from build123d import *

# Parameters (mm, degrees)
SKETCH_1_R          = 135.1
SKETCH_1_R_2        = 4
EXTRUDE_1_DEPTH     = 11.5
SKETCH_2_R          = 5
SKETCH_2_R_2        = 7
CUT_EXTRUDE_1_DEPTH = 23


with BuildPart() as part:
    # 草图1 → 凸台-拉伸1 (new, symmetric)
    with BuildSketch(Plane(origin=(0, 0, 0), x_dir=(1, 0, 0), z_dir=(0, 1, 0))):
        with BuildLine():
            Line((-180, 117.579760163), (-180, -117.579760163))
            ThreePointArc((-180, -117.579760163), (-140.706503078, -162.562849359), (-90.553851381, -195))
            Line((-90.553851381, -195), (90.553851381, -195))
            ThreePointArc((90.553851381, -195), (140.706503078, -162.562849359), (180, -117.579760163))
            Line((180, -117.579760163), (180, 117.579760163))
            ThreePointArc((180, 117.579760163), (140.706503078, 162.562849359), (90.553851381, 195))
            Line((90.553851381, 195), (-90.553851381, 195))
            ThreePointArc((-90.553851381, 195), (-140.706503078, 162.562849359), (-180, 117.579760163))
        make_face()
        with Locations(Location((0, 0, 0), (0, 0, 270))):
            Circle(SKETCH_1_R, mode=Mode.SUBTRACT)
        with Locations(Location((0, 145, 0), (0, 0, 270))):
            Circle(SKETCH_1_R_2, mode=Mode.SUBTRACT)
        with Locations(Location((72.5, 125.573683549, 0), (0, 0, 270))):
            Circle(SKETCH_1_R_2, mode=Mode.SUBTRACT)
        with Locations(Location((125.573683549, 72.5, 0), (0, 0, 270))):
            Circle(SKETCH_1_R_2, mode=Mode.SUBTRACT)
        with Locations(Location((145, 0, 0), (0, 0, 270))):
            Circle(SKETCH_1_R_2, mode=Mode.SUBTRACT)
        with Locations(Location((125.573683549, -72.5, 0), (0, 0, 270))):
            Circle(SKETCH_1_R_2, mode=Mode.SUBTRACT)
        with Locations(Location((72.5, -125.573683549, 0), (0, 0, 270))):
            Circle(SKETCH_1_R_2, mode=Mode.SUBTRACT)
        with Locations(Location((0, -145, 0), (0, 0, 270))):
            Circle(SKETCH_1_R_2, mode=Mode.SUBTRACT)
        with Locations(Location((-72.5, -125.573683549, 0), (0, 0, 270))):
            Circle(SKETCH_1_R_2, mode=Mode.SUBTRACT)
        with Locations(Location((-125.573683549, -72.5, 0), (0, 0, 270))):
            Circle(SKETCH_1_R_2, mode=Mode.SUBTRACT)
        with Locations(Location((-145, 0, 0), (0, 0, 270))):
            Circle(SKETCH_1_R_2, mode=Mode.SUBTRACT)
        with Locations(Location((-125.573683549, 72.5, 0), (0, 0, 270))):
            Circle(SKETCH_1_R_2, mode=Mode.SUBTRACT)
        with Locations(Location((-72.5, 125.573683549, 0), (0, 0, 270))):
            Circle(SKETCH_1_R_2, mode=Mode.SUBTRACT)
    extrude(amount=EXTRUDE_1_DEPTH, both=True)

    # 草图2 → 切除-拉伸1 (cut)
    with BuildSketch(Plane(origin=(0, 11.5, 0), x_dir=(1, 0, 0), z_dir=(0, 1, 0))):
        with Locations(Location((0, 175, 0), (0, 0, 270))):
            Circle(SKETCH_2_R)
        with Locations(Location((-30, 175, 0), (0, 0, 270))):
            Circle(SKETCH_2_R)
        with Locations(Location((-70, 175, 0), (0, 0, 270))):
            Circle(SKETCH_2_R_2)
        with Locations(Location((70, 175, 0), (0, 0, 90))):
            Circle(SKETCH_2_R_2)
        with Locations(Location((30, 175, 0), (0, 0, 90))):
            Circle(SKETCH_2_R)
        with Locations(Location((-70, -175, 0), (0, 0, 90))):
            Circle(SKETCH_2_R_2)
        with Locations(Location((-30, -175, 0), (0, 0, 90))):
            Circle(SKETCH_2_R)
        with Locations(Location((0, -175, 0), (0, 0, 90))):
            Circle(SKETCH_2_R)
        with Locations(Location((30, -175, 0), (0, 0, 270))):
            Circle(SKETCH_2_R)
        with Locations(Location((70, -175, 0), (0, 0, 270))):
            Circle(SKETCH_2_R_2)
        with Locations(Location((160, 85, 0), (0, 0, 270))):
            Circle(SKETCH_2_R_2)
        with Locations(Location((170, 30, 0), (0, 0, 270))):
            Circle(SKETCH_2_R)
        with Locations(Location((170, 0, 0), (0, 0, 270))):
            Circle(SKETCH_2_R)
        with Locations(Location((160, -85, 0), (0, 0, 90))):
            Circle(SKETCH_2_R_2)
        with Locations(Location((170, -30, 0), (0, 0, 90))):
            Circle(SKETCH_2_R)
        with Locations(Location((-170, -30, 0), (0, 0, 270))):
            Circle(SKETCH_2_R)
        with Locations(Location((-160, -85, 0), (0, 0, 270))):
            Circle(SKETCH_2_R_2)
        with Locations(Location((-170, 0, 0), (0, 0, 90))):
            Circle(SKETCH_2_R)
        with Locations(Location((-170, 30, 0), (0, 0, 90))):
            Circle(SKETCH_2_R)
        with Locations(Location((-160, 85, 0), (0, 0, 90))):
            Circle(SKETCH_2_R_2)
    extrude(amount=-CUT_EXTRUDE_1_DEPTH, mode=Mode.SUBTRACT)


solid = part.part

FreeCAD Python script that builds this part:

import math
import FreeCAD as App
import Part
import Sketcher
from FreeCAD import Vector
Q = App.Units.Quantity

doc = App.newDocument("Part")
body = doc.addObject("PartDesign::Body", "Body")

# Sketch on XZ plane
sketch1 = body.newObject("Sketcher::SketchObject", "Sketch")
sketch1.AttachmentSupport = (doc.getObject("XZ_Plane"), [""])
sketch1.MapMode = "FlatFace"
sketch1.addGeometry(Part.LineSegment(Vector(-180, -117.6, 0), Vector(-180, 117.6, 0)), False)
sketch1.addGeometry(Part.ArcOfCircle(Part.Circle(Vector(0, 0, 0), Vector(0, 0, 1), 215), math.radians(115), math.radians(147)), False)
sketch1.addGeometry(Part.LineSegment(Vector(-90.6, 195, 0), Vector(90.6, 195, 0)), False)
sketch1.addGeometry(Part.ArcOfCircle(Part.Circle(Vector(0, 0, 0), Vector(0, 0, 1), 215), math.radians(33), math.radians(65)), False)
sketch1.addGeometry(Part.LineSegment(Vector(180, 117.6, 0), Vector(180, -117.6, 0)), False)
sketch1.addGeometry(Part.ArcOfCircle(Part.Circle(Vector(0, 0, 0), Vector(0, 0, 1), 215), math.radians(-65), math.radians(-33)), False)
sketch1.addGeometry(Part.LineSegment(Vector(90.6, -195, 0), Vector(-90.6, -195, 0)), False)
sketch1.addGeometry(Part.ArcOfCircle(Part.Circle(Vector(0, 0, 0), Vector(0, 0, 1), 215), math.radians(-147), math.radians(-115)), False)
sketch1.addGeometry(Part.Circle(Vector(-72.5, 125.6, 0), Vector(0, 0, 1), 4), False)
sketch1.addGeometry(Part.Circle(Vector(-125.6, 72.5, 0), Vector(0, 0, 1), 4), False)
sketch1.addGeometry(Part.Circle(Vector(0, 145, 0), Vector(0, 0, 1), 4), False)
sketch1.addGeometry(Part.Circle(Vector(72.5, 125.6, 0), Vector(0, 0, 1), 4), False)
sketch1.addGeometry(Part.Circle(Vector(125.6, 72.5, 0), Vector(0, 0, 1), 4), False)
sketch1.addGeometry(Part.Circle(Vector(-145, 0, 0), Vector(0, 0, 1), 4), False)
sketch1.addGeometry(Part.Circle(Vector(-125.6, -72.5, 0), Vector(0, 0, 1), 4), False)
sketch1.addGeometry(Part.Circle(Vector(-72.5, -125.6, 0), Vector(0, 0, 1), 4), False)
sketch1.addGeometry(Part.Circle(Vector(0, 0, 0), Vector(0, 0, 1), 135.1), False)
sketch1.addGeometry(Part.Circle(Vector(145, 0, 0), Vector(0, 0, 1), 4), False)
sketch1.addGeometry(Part.Circle(Vector(125.6, -72.5, 0), Vector(0, 0, 1), 4), False)
sketch1.addGeometry(Part.Circle(Vector(0, -145, 0), Vector(0, 0, 1), 4), False)
sketch1.addGeometry(Part.Circle(Vector(72.5, -125.6, 0), Vector(0, 0, 1), 4), False)
sketch1.addConstraint(Sketcher.Constraint("Coincident", 0, 2, 1, 2))
sketch1.addConstraint(Sketcher.Constraint("Coincident", 1, 1, 2, 1))
sketch1.addConstraint(Sketcher.Constraint("Coincident", 2, 2, 3, 2))
sketch1.addConstraint(Sketcher.Constraint("Coincident", 3, 1, 4, 1))
sketch1.addConstraint(Sketcher.Constraint("Coincident", 4, 2, 5, 2))
sketch1.addConstraint(Sketcher.Constraint("Coincident", 5, 1, 6, 1))
sketch1.addConstraint(Sketcher.Constraint("Coincident", 6, 2, 7, 2))
sketch1.addConstraint(Sketcher.Constraint("Coincident", 7, 1, 0, 1))
sketch1.addConstraint(Sketcher.Constraint("Vertical", 0))
sketch1.addConstraint(Sketcher.Constraint("Horizontal", 2))
sketch1.addConstraint(Sketcher.Constraint("Vertical", 4))
sketch1.addConstraint(Sketcher.Constraint("Horizontal", 6))
sketch1.addConstraint(Sketcher.Constraint("Coincident", 1, 3, -1, 1))
sketch1.addConstraint(Sketcher.Constraint("Coincident", 3, 3, -1, 1))
sketch1.addConstraint(Sketcher.Constraint("Coincident", 5, 3, -1, 1))
sketch1.addConstraint(Sketcher.Constraint("Coincident", 7, 3, -1, 1))
sketch1.addConstraint(Sketcher.Constraint("Coincident", 16, 3, -1, 1))
sketch1.addConstraint(Sketcher.Constraint("Equal", 1, 3))
sketch1.addConstraint(Sketcher.Constraint("Equal", 3, 5))
sketch1.addConstraint(Sketcher.Constraint("Equal", 5, 7))
sketch1.addConstraint(Sketcher.Constraint("Equal", 8, 9))
sketch1.addConstraint(Sketcher.Constraint("Equal", 9, 10))
sketch1.addConstraint(Sketcher.Constraint("Equal", 10, 11))
sketch1.addConstraint(Sketcher.Constraint("Equal", 11, 12))
sketch1.addConstraint(Sketcher.Constraint("Equal", 12, 13))
sketch1.addConstraint(Sketcher.Constraint("Equal", 13, 14))
sketch1.addConstraint(Sketcher.Constraint("Equal", 14, 15))
sketch1.addConstraint(Sketcher.Constraint("Equal", 15, 17))
sketch1.addConstraint(Sketcher.Constraint("Equal", 17, 18))
sketch1.addConstraint(Sketcher.Constraint("Equal", 18, 19))
sketch1.addConstraint(Sketcher.Constraint("Equal", 19, 20))
sketch1.addConstraint(Sketcher.Constraint("Symmetric", 12, 3, 14, 3, -1, 1))
sketch1.addConstraint(Sketcher.Constraint("Symmetric", 11, 3, 15, 3, -1, 1))
sketch1.addConstraint(Sketcher.Constraint("Symmetric", 13, 3, 17, 3, -1, 1))
sketch1.addConstraint(Sketcher.Constraint("Symmetric", 9, 3, 18, 3, -1, 1))
sketch1.addConstraint(Sketcher.Constraint("Symmetric", 10, 3, 19, 3, -1, 1))
sketch1.addConstraint(Sketcher.Constraint("Symmetric", 8, 3, 20, 3, -1, 1))
sketch1.addConstraint(Sketcher.Constraint("Symmetric", 8, 3, 11, 3, -2))
sketch1.addConstraint(Sketcher.Constraint("Symmetric", 9, 3, 12, 3, -2))
sketch1.addConstraint(Sketcher.Constraint("PointOnObject", 10, 3, -2))
sketch1.addConstraint(Sketcher.Constraint("PointOnObject", 13, 3, -1))
sketch1.addConstraint(Sketcher.Constraint("Horizontal", 0, 2, 3, 1))
sketch1.addConstraint(Sketcher.Constraint("Vertical", 2, 2, 5, 1))
sketch1.addConstraint(Sketcher.Constraint("Diameter", 8, Q("8 mm")))
sketch1.addConstraint(Sketcher.Constraint("Radius", 1, Q("215 mm")))
sketch1.addConstraint(Sketcher.Constraint("Diameter", 16, Q("270.2 mm")))
sketch1.addConstraint(Sketcher.Constraint("DistanceY", -1, 1, 10, 3, Q("145 mm")))
sketch1.addConstraint(Sketcher.Constraint("DistanceX", 13, 3, -1, 1, Q("145 mm")))
sketch1.addConstraint(Sketcher.Constraint("DistanceX", 0, 2, -1, 1, Q("180 mm")))
sketch1.addConstraint(Sketcher.Constraint("DistanceY", -1, 1, 1, 1, Q("195 mm")))
sketch1.addConstraint(Sketcher.Constraint("DistanceX", 8, 3, 11, 3, Q("145 mm")))
sketch1.addConstraint(Sketcher.Constraint("DistanceY", 14, 3, 9, 3, Q("145 mm")))
sketch1.addConstraint(Sketcher.Constraint("DistanceY", -1, 1, 8, 3, Q("125.573684 mm")))
sketch1.addConstraint(Sketcher.Constraint("DistanceX", 9, 3, -1, 1, Q("125.573684 mm")))
pad1 = body.newObject("PartDesign::Pad", "Pad")
pad1.Profile = sketch1
pad1.Length = 23
pad1.Midplane = True

# Sketch on XZ plane
sketch2 = body.newObject("Sketcher::SketchObject", "Sketch001")
sketch2.AttachmentSupport = (doc.getObject("XZ_Plane"), [""])
sketch2.MapMode = "FlatFace"
sketch2.AttachmentOffset = App.Placement(Vector(0, 0, -11.5), App.Rotation())
sketch2.addGeometry(Part.Circle(Vector(0, -175, 0), Vector(0, 0, 1), 5), False)
sketch2.addGeometry(Part.Circle(Vector(-30, -175, 0), Vector(0, 0, 1), 5), False)
sketch2.addGeometry(Part.Circle(Vector(-70, -175, 0), Vector(0, 0, 1), 7), False)
sketch2.addGeometry(Part.Circle(Vector(70, -175, 0), Vector(0, 0, 1), 7), False)
sketch2.addGeometry(Part.Circle(Vector(30, -175, 0), Vector(0, 0, 1), 5), False)
sketch2.addGeometry(Part.Circle(Vector(-70, 175, 0), Vector(0, 0, 1), 7), False)
sketch2.addGeometry(Part.Circle(Vector(-30, 175, 0), Vector(0, 0, 1), 5), False)
sketch2.addGeometry(Part.Circle(Vector(0, 175, 0), Vector(0, 0, 1), 5), False)
sketch2.addGeometry(Part.Circle(Vector(30, 175, 0), Vector(0, 0, 1), 5), False)
sketch2.addGeometry(Part.Circle(Vector(70, 175, 0), Vector(0, 0, 1), 7), False)
sketch2.addGeometry(Part.Circle(Vector(160, -85, 0), Vector(0, 0, 1), 7), False)
sketch2.addGeometry(Part.Circle(Vector(170, -30, 0), Vector(0, 0, 1), 5), False)
sketch2.addGeometry(Part.Circle(Vector(170, 0, 0), Vector(0, 0, 1), 5), False)
sketch2.addGeometry(Part.Circle(Vector(160, 85, 0), Vector(0, 0, 1), 7), False)
sketch2.addGeometry(Part.Circle(Vector(170, 30, 0), Vector(0, 0, 1), 5), False)
sketch2.addGeometry(Part.Circle(Vector(-170, 30, 0), Vector(0, 0, 1), 5), False)
sketch2.addGeometry(Part.Circle(Vector(-160, 85, 0), Vector(0, 0, 1), 7), False)
sketch2.addGeometry(Part.Circle(Vector(-170, 0, 0), Vector(0, 0, 1), 5), False)
sketch2.addGeometry(Part.Circle(Vector(-170, -30, 0), Vector(0, 0, 1), 5), False)
sketch2.addGeometry(Part.Circle(Vector(-160, -85, 0), Vector(0, 0, 1), 7), False)
sketch2.addConstraint(Sketcher.Constraint("Equal", 0, 1))
sketch2.addConstraint(Sketcher.Constraint("Equal", 2, 3))
sketch2.addConstraint(Sketcher.Constraint("Equal", 1, 4))
sketch2.addConstraint(Sketcher.Constraint("Equal", 3, 5))
sketch2.addConstraint(Sketcher.Constraint("Equal", 4, 6))
sketch2.addConstraint(Sketcher.Constraint("Equal", 6, 7))
sketch2.addConstraint(Sketcher.Constraint("Equal", 7, 8))
sketch2.addConstraint(Sketcher.Constraint("Equal", 5, 9))
sketch2.addConstraint(Sketcher.Constraint("Equal", 9, 10))
sketch2.addConstraint(Sketcher.Constraint("Equal", 8, 11))
sketch2.addConstraint(Sketcher.Constraint("Equal", 11, 12))
sketch2.addConstraint(Sketcher.Constraint("Equal", 10, 13))
sketch2.addConstraint(Sketcher.Constraint("Equal", 12, 14))
sketch2.addConstraint(Sketcher.Constraint("Equal", 14, 15))
sketch2.addConstraint(Sketcher.Constraint("Equal", 13, 16))
sketch2.addConstraint(Sketcher.Constraint("Equal", 15, 17))
sketch2.addConstraint(Sketcher.Constraint("Equal", 17, 18))
sketch2.addConstraint(Sketcher.Constraint("Equal", 16, 19))
sketch2.addConstraint(Sketcher.Constraint("Symmetric", 3, 3, 5, 3, -1, 1))
sketch2.addConstraint(Sketcher.Constraint("Symmetric", 4, 3, 6, 3, -1, 1))
sketch2.addConstraint(Sketcher.Constraint("Symmetric", 0, 3, 7, 3, -1, 1))
sketch2.addConstraint(Sketcher.Constraint("Symmetric", 1, 3, 8, 3, -1, 1))
sketch2.addConstraint(Sketcher.Constraint("Symmetric", 2, 3, 9, 3, -1, 1))
sketch2.addConstraint(Sketcher.Constraint("Symmetric", 11, 3, 15, 3, -1, 1))
sketch2.addConstraint(Sketcher.Constraint("Symmetric", 10, 3, 16, 3, -1, 1))
sketch2.addConstraint(Sketcher.Constraint("Symmetric", 12, 3, 17, 3, -1, 1))
sketch2.addConstraint(Sketcher.Constraint("Symmetric", 14, 3, 18, 3, -1, 1))
sketch2.addConstraint(Sketcher.Constraint("Symmetric", 13, 3, 19, 3, -1, 1))
sketch2.addConstraint(Sketcher.Constraint("Symmetric", 2, 3, 3, 3, -2))
sketch2.addConstraint(Sketcher.Constraint("Symmetric", 1, 3, 4, 3, -2))
sketch2.addConstraint(Sketcher.Constraint("Symmetric", 14, 3, 15, 3, -2))
sketch2.addConstraint(Sketcher.Constraint("Symmetric", 13, 3, 16, 3, -2))
sketch2.addConstraint(Sketcher.Constraint("PointOnObject", 0, 3, -2))
sketch2.addConstraint(Sketcher.Constraint("PointOnObject", 12, 3, -1))
sketch2.addConstraint(Sketcher.Constraint("Horizontal", 0, 3, 1, 3))
sketch2.addConstraint(Sketcher.Constraint("Horizontal", 1, 3, 2, 3))
sketch2.addConstraint(Sketcher.Constraint("Vertical", 11, 3, 12, 3))
sketch2.addConstraint(Sketcher.Constraint("Diameter", 0, Q("10 mm")))
sketch2.addConstraint(Sketcher.Constraint("Diameter", 2, Q("14 mm")))
sketch2.addConstraint(Sketcher.Constraint("DistanceY", 0, 3, -1, 1, Q("175 mm")))
sketch2.addConstraint(Sketcher.Constraint("DistanceX", 1, 3, -1, 1, Q("30 mm")))
sketch2.addConstraint(Sketcher.Constraint("DistanceX", 2, 3, -1, 1, Q("70 mm")))
sketch2.addConstraint(Sketcher.Constraint("DistanceX", -1, 1, 10, 3, Q("160 mm")))
sketch2.addConstraint(Sketcher.Constraint("DistanceY", 10, 3, -1, 1, Q("85 mm")))
sketch2.addConstraint(Sketcher.Constraint("DistanceX", -1, 1, 11, 3, Q("170 mm")))
sketch2.addConstraint(Sketcher.Constraint("DistanceY", 11, 3, -1, 1, Q("30 mm")))
pocket1 = body.newObject("PartDesign::Pocket", "Pocket")
pocket1.Profile = sketch2
pocket1.Length = 23
pocket1.Reversed = True

doc.recompute()
